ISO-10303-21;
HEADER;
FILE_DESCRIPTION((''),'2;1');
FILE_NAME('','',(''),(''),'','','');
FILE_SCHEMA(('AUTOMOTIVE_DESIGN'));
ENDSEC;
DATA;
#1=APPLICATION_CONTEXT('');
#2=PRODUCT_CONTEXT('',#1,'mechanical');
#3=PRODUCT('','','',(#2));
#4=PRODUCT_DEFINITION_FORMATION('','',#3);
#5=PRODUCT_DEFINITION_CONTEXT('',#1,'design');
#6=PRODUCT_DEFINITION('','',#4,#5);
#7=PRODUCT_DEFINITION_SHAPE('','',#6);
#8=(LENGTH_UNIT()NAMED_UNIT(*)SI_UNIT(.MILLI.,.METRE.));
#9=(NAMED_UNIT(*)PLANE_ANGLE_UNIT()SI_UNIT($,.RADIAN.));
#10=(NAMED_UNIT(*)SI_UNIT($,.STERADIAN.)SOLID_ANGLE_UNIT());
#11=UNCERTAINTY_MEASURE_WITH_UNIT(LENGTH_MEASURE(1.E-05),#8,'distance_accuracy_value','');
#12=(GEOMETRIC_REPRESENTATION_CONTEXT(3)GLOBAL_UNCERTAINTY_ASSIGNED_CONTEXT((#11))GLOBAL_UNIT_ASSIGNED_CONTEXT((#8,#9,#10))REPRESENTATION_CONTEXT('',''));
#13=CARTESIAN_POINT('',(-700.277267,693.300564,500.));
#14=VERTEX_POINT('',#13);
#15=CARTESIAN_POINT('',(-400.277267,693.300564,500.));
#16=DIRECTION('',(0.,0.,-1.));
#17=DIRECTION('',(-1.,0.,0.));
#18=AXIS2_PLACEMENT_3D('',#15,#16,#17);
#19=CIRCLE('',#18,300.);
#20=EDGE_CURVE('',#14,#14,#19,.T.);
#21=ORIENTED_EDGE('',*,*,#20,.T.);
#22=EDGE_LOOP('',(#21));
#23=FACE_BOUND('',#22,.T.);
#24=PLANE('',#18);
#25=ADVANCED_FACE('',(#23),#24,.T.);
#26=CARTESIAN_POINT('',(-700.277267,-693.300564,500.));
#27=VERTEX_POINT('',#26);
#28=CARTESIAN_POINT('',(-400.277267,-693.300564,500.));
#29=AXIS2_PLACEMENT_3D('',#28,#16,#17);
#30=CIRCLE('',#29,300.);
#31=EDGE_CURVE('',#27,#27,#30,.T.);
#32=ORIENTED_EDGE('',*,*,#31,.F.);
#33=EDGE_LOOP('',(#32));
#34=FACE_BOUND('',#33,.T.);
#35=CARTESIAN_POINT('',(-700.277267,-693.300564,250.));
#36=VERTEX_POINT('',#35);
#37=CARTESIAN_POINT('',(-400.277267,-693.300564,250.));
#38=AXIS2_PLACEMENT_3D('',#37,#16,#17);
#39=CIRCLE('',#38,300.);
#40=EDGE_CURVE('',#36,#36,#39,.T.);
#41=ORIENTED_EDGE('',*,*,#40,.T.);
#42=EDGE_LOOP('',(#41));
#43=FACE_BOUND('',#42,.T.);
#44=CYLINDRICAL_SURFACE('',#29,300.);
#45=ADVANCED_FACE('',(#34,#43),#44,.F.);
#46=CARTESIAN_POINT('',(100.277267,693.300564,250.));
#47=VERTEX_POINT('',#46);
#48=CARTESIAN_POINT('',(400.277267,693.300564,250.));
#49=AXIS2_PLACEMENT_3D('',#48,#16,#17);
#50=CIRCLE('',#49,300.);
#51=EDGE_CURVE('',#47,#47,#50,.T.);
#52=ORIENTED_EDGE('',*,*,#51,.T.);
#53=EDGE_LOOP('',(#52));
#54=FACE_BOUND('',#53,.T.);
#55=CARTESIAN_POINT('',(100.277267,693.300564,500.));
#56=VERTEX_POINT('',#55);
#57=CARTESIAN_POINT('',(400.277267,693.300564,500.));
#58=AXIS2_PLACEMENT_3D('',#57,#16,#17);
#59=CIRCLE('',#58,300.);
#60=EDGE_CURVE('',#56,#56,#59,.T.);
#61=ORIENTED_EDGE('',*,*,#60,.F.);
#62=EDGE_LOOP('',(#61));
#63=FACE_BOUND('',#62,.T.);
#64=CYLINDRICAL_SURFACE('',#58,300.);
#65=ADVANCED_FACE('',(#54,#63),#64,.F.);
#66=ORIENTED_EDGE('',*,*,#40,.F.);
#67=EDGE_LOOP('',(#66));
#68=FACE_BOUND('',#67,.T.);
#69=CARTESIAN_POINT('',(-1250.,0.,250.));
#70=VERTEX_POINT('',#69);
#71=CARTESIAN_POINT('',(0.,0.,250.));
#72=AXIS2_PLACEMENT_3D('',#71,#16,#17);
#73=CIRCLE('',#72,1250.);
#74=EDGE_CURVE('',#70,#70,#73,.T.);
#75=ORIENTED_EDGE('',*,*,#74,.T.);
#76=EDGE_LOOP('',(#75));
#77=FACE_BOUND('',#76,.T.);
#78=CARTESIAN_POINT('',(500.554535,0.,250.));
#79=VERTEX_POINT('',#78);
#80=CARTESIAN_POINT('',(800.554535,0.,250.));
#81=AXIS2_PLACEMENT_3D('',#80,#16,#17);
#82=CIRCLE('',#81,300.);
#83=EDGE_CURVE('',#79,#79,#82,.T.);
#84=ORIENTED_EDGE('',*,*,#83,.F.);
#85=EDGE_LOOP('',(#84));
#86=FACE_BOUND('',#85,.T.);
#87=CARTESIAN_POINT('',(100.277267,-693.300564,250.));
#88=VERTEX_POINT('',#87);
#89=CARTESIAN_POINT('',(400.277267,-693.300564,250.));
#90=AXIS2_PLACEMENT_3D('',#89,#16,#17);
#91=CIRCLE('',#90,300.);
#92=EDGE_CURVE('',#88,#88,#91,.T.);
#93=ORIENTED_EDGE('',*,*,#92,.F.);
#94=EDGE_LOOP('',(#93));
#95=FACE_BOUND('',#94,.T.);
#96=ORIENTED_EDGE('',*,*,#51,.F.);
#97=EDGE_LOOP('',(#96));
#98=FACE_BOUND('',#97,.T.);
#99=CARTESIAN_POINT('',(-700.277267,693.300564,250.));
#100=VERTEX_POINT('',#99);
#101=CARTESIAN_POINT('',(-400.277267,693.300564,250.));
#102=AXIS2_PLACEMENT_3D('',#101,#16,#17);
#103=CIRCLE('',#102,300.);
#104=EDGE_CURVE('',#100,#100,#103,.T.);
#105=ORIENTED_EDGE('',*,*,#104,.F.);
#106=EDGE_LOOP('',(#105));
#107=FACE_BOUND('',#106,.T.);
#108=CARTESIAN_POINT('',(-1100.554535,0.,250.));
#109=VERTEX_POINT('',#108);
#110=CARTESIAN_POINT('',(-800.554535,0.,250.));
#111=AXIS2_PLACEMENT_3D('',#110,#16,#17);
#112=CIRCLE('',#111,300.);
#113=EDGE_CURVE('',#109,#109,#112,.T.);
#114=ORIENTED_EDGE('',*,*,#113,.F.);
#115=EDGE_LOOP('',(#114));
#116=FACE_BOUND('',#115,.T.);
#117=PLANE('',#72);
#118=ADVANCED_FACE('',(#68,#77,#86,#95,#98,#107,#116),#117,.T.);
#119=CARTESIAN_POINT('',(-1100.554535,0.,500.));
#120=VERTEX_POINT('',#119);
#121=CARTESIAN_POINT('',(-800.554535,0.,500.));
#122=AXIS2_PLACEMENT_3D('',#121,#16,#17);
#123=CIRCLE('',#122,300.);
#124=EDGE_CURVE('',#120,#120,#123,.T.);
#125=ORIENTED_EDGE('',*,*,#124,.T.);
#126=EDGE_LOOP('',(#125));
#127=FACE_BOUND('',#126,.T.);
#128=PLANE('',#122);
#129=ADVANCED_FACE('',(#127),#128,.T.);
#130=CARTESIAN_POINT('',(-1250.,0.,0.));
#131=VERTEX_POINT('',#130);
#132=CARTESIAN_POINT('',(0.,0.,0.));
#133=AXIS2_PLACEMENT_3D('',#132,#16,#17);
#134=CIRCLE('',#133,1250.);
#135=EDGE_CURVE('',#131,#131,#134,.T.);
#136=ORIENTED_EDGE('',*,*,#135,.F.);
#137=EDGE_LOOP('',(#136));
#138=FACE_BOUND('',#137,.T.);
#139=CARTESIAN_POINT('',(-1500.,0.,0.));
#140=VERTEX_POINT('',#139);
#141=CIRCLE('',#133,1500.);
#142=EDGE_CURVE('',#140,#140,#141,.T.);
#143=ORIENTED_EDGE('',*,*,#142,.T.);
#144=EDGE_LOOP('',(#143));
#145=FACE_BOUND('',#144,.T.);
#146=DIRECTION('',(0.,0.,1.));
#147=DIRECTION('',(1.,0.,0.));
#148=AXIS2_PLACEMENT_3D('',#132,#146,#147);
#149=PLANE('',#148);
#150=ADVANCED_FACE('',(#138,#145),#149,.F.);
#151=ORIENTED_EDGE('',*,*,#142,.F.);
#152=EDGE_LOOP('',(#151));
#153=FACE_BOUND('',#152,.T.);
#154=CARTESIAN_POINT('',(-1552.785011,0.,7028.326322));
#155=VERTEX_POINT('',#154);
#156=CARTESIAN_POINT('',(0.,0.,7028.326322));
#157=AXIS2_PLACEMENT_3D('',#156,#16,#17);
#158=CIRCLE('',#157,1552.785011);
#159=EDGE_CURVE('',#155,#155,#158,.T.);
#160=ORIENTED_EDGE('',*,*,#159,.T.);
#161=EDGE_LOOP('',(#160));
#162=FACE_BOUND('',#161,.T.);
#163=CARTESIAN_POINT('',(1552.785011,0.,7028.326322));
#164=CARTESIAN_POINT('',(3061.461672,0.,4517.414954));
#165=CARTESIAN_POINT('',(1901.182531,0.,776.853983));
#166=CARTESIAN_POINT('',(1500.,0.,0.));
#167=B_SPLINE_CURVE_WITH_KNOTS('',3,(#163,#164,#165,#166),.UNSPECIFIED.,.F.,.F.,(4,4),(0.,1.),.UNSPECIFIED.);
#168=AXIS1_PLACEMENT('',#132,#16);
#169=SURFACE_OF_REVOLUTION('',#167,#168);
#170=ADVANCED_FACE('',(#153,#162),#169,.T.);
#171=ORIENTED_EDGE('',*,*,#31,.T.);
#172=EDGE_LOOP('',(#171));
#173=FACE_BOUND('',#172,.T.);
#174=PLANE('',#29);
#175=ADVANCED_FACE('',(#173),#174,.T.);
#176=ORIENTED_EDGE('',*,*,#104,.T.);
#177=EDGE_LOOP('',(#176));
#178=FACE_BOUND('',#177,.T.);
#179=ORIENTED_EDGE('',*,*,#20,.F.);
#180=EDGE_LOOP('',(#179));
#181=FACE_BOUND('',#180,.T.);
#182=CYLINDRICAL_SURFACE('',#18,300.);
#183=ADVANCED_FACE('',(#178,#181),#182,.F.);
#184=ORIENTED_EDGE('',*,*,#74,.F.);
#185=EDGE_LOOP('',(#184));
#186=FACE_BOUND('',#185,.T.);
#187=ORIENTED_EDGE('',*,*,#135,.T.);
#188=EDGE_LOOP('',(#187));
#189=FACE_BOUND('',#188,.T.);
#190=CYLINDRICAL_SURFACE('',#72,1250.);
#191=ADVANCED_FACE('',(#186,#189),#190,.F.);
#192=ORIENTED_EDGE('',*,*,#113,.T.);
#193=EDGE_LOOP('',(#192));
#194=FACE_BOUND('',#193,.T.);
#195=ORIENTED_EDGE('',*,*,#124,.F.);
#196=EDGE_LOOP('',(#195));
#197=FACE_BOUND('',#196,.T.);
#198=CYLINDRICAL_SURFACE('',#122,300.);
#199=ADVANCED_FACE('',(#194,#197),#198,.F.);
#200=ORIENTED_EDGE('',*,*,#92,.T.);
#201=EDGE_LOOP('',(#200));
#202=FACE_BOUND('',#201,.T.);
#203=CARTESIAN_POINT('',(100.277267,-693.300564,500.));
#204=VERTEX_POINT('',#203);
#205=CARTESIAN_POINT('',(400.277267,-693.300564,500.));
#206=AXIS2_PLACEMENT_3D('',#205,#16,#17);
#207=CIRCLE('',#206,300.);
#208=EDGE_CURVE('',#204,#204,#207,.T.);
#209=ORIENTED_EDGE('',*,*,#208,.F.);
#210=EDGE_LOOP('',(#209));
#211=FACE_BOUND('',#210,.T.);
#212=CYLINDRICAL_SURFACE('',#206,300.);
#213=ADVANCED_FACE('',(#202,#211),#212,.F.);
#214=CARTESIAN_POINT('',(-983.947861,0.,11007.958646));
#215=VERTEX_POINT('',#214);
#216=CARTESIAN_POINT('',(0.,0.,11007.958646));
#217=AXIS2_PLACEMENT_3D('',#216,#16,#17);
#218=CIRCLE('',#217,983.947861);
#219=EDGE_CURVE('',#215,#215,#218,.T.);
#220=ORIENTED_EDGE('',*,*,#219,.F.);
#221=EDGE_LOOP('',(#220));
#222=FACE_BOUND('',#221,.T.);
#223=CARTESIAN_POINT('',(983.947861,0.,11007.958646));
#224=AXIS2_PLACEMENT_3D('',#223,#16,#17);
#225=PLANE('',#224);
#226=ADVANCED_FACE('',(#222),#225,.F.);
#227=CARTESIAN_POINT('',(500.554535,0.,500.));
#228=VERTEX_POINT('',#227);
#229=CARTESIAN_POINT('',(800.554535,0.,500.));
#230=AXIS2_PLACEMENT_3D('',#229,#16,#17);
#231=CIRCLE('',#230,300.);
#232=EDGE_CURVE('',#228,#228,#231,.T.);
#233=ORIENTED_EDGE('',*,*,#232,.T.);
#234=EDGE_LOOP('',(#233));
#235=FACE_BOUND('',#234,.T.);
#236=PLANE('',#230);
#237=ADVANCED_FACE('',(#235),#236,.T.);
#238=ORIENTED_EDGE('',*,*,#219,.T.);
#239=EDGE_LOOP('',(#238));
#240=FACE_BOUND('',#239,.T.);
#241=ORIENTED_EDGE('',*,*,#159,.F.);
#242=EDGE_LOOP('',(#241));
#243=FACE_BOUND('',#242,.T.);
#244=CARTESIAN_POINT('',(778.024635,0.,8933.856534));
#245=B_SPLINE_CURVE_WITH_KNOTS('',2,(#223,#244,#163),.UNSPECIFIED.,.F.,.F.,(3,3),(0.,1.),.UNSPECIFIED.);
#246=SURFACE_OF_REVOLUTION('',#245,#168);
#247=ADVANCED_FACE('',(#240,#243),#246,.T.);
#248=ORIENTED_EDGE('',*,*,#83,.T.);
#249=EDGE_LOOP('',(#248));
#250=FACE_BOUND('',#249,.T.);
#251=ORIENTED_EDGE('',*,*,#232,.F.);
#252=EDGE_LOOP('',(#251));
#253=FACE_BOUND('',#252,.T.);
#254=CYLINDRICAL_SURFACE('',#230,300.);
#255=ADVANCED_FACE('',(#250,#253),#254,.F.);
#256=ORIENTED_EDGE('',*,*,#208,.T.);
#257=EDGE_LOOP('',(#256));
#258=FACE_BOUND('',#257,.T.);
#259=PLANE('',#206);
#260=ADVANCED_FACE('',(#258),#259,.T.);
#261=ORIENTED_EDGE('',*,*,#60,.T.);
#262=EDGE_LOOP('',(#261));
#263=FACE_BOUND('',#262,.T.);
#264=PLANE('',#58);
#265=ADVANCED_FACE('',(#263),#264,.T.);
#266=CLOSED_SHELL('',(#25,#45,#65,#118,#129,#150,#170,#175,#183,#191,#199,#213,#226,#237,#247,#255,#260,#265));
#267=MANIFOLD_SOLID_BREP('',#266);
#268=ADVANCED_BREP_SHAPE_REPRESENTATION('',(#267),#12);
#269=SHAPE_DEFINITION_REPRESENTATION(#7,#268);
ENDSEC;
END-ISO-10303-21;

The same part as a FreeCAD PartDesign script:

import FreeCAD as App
import Part
import Sketcher

V = App.Vector

doc = App.newDocument("Part")
body = doc.addObject("PartDesign::Body", "Body")

# Sketch on XZ plane
sketch1 = body.newObject("Sketcher::SketchObject", "Sketch")
sketch1.AttachmentSupport = (doc.getObject("XZ_Plane"), [""])
sketch1.MapMode = "FlatFace"
sketch1.addGeometry([
    Part.LineSegment(V(0, 11007.958646, 0), V(983.947861, 11007.958646, 0)),  # 0
    Part.BSplineCurve([V(983.947861, 11007.958646, 0), V(778.024635, 8933.856534, 0), V(1552.785011, 7028.326322, 0)], [3, 3], [0, 1], False, 2, [1, 1, 1], False),  # 1
    Part.BSplineCurve([V(1500, 0, 0), V(1901.182531, 776.853983, 0), V(3061.461672, 4517.414954, 0), V(1552.785011, 7028.326322, 0)], [4, 4], [0, 1], False, 3, [1, 1, 1, 1], False),  # 2
    Part.LineSegment(V(1500, 0, 0), V(0, 0, 0)),  # 3
    Part.LineSegment(V(0, 0, 0), V(0, 11007.958646, 0)),  # 4
], False)
sketch1.addConstraint([
    Sketcher.Constraint("Block", 1),
    Sketcher.Constraint("Block", 2),
    Sketcher.Constraint("Coincident", 0, 2, 1, 1),
    Sketcher.Constraint("Coincident", 2, 1, 3, 1),
    Sketcher.Constraint("Coincident", 3, 2, 4, 1),
    Sketcher.Constraint("Coincident", 4, 2, 0, 1),
    Sketcher.Constraint("Horizontal", 0),
    Sketcher.Constraint("Horizontal", 3),
    Sketcher.Constraint("Vertical", 4),
    Sketcher.Constraint("PointOnObject", 4, 2, -2),
])
revolution = body.newObject("PartDesign::Revolution", "Revolution")
revolution.Profile = sketch1
revolution.ReferenceAxis = (sketch1, ["V_Axis"])
revolution.Angle = 360

# Sketch on XY plane
sketch2 = body.newObject("Sketcher::SketchObject", "Sketch001")
sketch2.AttachmentSupport = (doc.getObject("XY_Plane"), [""])
sketch2.MapMode = "FlatFace"
sketch2.addGeometry(Part.Circle(V(0, 0, 0), V(0, 0, 1), 1250), False)
sketch2.addConstraint([
    Sketcher.Constraint("Coincident", 0, 3, -1, 1),
    Sketcher.Constraint("Diameter", 0, 2500.0),
])
pocket1 = body.newObject("PartDesign::Pocket", "Pocket")
pocket1.Profile = sketch2
pocket1.Length = 250
pocket1.Reversed = True

# Sketch on XY plane
sketch3 = body.newObject("Sketcher::SketchObject", "Sketch002")
sketch3.AttachmentSupport = (doc.getObject("XY_Plane"), [""])
sketch3.MapMode = "FlatFace"
sketch3.AttachmentOffset = App.Placement(V(0, 0, 250), App.Rotation())
sketch3.addGeometry([
    Part.Circle(V(-801, 0, 0), V(0, 0, 1), 300),  # 0
    Part.Circle(V(-400, -693, 0), V(0, 0, 1), 300),  # 1
    Part.Circle(V(400, -693, 0), V(0, 0, 1), 300),  # 2
    Part.Circle(V(801, 0, 0), V(0, 0, 1), 300),  # 3
    Part.Circle(V(400, 693, 0), V(0, 0, 1), 300),  # 4
    Part.Circle(V(-400, 693, 0), V(0, 0, 1), 300),  # 5
], False)
sketch3.addConstraint([
    Sketcher.Constraint("Equal", 0, 1),
    Sketcher.Constraint("Equal", 1, 2),
    Sketcher.Constraint("Equal", 2, 3),
    Sketcher.Constraint("Equal", 3, 4),
    Sketcher.Constraint("Equal", 4, 5),
    Sketcher.Constraint("Symmetric", 0, 3, 3, 3, -1, 1),
    Sketcher.Constraint("Symmetric", 1, 3, 4, 3, -1, 1),
    Sketcher.Constraint("Symmetric", 2, 3, 5, 3, -1, 1),
    Sketcher.Constraint("Symmetric", 1, 3, 2, 3, -2),
    Sketcher.Constraint("PointOnObject", 0, 3, -1),
    Sketcher.Constraint("Diameter", 0, 600.0),
    Sketcher.Constraint("DistanceX", 0, 3, 3, 3, 1601.10907),
    Sketcher.Constraint("DistanceY", 2, 3, 4, 3, 1386.601128),
    Sketcher.Constraint("DistanceX", 1, 3, -1, 1, 400.277267),
])
pocket2 = body.newObject("PartDesign::Pocket", "Pocket001")
pocket2.Profile = sketch3
pocket2.Length = 250
pocket2.Reversed = True

doc.recompute()
